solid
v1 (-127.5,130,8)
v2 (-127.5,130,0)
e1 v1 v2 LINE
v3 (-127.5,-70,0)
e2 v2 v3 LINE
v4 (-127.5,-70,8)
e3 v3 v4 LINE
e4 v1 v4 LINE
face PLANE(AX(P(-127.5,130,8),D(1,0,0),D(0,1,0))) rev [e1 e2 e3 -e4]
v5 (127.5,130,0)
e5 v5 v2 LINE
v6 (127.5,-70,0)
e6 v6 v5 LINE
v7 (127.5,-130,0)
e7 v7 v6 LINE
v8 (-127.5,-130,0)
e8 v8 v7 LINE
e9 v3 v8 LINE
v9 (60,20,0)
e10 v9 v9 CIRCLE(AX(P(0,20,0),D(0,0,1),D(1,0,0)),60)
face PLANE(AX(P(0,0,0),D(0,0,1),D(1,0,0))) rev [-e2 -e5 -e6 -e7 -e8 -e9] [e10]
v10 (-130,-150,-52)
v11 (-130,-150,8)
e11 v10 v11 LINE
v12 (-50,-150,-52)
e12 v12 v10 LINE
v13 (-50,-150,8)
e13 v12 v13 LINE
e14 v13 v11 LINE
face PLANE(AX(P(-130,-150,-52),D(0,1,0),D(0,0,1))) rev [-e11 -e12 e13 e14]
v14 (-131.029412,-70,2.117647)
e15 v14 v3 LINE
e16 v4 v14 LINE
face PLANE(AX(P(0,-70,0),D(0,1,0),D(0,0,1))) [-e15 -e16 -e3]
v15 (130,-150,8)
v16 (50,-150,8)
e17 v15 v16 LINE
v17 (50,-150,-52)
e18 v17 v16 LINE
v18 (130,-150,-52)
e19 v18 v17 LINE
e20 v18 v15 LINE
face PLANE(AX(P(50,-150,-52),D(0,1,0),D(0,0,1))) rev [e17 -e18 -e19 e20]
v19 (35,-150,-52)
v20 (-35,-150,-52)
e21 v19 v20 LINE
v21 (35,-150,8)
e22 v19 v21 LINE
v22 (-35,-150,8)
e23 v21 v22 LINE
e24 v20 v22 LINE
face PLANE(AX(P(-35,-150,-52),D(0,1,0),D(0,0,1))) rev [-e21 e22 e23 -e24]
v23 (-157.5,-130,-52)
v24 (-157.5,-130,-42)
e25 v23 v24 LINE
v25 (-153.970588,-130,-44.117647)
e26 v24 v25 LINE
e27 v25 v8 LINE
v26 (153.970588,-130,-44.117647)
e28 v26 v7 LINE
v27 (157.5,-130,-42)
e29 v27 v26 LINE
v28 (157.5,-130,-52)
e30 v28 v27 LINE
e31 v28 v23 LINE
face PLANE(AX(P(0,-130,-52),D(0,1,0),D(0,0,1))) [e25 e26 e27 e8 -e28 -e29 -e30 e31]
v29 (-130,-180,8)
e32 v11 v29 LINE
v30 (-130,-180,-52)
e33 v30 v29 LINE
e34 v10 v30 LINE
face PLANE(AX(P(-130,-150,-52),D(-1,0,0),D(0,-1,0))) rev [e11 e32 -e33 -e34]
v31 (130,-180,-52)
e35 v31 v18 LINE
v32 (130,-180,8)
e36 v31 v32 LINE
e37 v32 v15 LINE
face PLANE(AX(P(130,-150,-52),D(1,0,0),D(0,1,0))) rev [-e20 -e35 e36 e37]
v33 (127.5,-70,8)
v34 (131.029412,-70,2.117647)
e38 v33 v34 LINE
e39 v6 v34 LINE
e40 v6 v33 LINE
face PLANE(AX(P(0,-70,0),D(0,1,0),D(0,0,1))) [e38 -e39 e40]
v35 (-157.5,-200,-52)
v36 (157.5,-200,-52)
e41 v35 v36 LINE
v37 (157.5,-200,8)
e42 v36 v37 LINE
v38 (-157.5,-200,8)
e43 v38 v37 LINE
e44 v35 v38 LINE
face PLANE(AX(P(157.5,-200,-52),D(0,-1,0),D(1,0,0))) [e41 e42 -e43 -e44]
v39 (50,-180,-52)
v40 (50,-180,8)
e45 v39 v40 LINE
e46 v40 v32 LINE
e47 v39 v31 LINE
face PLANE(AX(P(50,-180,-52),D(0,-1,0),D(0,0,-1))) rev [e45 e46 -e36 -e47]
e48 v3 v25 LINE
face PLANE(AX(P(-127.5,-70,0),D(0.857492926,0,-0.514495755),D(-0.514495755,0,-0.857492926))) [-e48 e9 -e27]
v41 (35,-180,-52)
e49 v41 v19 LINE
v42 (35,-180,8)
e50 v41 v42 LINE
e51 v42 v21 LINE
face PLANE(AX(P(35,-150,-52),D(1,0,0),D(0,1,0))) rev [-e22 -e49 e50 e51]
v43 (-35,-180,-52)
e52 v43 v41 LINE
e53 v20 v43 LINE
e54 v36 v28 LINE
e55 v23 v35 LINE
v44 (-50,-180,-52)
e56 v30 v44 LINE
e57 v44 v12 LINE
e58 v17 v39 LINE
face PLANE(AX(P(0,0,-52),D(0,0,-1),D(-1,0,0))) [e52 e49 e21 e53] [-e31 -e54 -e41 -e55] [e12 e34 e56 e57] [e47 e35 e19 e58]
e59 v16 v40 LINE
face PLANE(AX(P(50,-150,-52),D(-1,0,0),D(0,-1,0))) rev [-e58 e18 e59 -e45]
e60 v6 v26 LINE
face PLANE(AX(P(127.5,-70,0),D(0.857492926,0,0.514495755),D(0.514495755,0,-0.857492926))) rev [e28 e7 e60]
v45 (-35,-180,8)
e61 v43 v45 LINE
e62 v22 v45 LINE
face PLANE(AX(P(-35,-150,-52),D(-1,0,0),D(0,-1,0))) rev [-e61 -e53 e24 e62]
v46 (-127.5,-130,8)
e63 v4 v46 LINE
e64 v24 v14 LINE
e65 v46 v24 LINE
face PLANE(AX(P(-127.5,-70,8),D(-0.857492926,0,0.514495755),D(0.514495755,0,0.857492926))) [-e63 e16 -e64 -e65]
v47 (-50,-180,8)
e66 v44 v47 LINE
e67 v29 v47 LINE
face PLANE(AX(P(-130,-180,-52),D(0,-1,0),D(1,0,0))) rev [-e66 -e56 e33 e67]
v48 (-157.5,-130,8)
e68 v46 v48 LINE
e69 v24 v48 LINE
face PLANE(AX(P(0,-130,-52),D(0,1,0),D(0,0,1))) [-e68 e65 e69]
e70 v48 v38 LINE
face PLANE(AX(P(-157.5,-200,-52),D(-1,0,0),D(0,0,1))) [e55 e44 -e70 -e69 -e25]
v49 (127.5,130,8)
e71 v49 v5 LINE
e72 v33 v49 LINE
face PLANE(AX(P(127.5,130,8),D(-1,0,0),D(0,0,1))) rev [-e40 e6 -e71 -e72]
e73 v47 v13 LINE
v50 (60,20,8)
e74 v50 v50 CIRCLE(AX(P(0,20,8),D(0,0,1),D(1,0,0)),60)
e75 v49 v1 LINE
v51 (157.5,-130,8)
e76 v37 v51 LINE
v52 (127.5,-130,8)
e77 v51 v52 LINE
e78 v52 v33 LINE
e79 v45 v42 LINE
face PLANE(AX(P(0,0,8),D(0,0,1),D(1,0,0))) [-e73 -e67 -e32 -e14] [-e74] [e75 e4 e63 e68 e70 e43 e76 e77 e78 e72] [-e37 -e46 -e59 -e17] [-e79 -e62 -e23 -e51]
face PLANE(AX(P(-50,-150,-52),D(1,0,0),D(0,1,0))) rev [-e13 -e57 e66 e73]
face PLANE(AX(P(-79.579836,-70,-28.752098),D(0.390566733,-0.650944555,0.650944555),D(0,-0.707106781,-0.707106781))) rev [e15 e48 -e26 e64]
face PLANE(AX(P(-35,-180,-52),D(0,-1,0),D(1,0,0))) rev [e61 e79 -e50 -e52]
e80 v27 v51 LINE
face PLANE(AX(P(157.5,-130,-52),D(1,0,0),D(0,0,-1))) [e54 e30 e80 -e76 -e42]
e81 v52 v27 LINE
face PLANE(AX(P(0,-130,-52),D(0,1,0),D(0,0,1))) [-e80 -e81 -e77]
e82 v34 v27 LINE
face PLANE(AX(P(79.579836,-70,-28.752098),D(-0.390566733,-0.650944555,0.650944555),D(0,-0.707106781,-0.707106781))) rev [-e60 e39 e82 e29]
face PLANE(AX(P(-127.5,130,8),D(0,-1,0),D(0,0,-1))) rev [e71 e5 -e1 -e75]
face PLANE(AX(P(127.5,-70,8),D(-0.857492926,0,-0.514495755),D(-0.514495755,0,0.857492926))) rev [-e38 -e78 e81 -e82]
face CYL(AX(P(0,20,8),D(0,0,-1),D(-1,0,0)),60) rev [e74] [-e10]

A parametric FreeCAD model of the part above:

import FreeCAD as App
import Part
import Sketcher

doc = App.newDocument("Part")
body = doc.addObject("PartDesign::Body", "Body")

# Sketch on XY plane
sketch1 = body.newObject("Sketcher::SketchObject", "Sketch")
sketch1.AttachmentSupport = (doc.getObject("XY_Plane"), [""])
sketch1.MapMode = "FlatFace"
sketch1.addGeometry(Part.LineSegment(App.Vector(-128, 130, 0), App.Vector(-128, -130, 0)), False)
sketch1.addGeometry(Part.LineSegment(App.Vector(-128, -130, 0), App.Vector(128, -130, 0)), False)
sketch1.addGeometry(Part.LineSegment(App.Vector(128, -130, 0), App.Vector(128, 130, 0)), False)
sketch1.addGeometry(Part.LineSegment(App.Vector(128, 130, 0), App.Vector(-128, 130, 0)), False)
sketch1.addGeometry(Part.Circle(App.Vector(0, 20, 0), App.Vector(0, 0, 1), 60), False)
sketch1.addConstraint(Sketcher.Constraint("Coincident", 0, 2, 1, 1))
sketch1.addConstraint(Sketcher.Constraint("Coincident", 1, 2, 2, 1))
sketch1.addConstraint(Sketcher.Constraint("Coincident", 2, 2, 3, 1))
sketch1.addConstraint(Sketcher.Constraint("Coincident", 3, 2, 0, 1))
sketch1.addConstraint(Sketcher.Constraint("Vertical", 0))
sketch1.addConstraint(Sketcher.Constraint("Horizontal", 1))
sketch1.addConstraint(Sketcher.Constraint("Vertical", 2))
sketch1.addConstraint(Sketcher.Constraint("Horizontal", 3))
sketch1.addConstraint(Sketcher.Constraint("Symmetric", 0, 2, 2, 2, -1, 1))
sketch1.addConstraint(Sketcher.Constraint("PointOnObject", 4, 3, -2))
sketch1.addConstraint(Sketcher.Constraint("Diameter", 4, 120.0))
sketch1.addConstraint(Sketcher.Constraint("DistanceX", 1, 1, 1, 2, 255.0))
sketch1.addConstraint(Sketcher.Constraint("DistanceY", 0, 2, 0, 1, 260.0))
sketch1.addConstraint(Sketcher.Constraint("DistanceY", -1, 1, 4, 3, 20.0))
pad1 = body.newObject("PartDesign::Pad", "Pad")
pad1.Profile = sketch1
pad1.Length = 8

# Sketch on XY plane
sketch2 = body.newObject("Sketcher::SketchObject", "Sketch001")
sketch2.AttachmentSupport = (doc.getObject("XY_Plane"), [""])
sketch2.MapMode = "FlatFace"
sketch2.AttachmentOffset = App.Placement(App.Vector(0, 0, 8), App.Rotation())
sketch2.addGeometry(Part.LineSegment(App.Vector(158, -130, 0), App.Vector(-158, -130, 0)), False)
sketch2.addGeometry(Part.LineSegment(App.Vector(-158, -130, 0), App.Vector(-158, -200, 0)), False)
sketch2.addGeometry(Part.LineSegment(App.Vector(-158, -200, 0), App.Vector(158, -200, 0)), False)
sketch2.addGeometry(Part.LineSegment(App.Vector(158, -200, 0), App.Vector(158, -130, 0)), False)
sketch2.addGeometry(Part.LineSegment(App.Vector(50, -180, 0), App.Vector(50, -150, 0)), False)
sketch2.addGeometry(Part.LineSegment(App.Vector(50, -150, 0), App.Vector(130, -150, 0)), False)
sketch2.addGeometry(Part.LineSegment(App.Vector(130, -150, 0), App.Vector(130, -180, 0)), False)
sketch2.addGeometry(Part.LineSegment(App.Vector(130, -180, 0), App.Vector(50, -180, 0)), False)
sketch2.addGeometry(Part.LineSegment(App.Vector(-35, -180, 0), App.Vector(-35, -150, 0)), False)
sketch2.addGeometry(Part.LineSegment(App.Vector(-35, -150, 0), App.Vector(35, -150, 0)), False)
sketch2.addGeometry(Part.LineSegment(App.Vector(35, -150, 0), App.Vector(35, -180, 0)), False)
sketch2.addGeometry(Part.LineSegment(App.Vector(35, -180, 0), App.Vector(-35, -180, 0)), False)
sketch2.addGeometry(Part.LineSegment(App.Vector(-130, -180, 0), App.Vector(-130, -150, 0)), False)
sketch2.addGeometry(Part.LineSegment(App.Vector(-130, -150, 0), App.Vector(-50, -150, 0)), False)
sketch2.addGeometry(Part.LineSegment(App.Vector(-50, -150, 0), App.Vector(-50, -180, 0)), False)
sketch2.addGeometry(Part.LineSegment(App.Vector(-50, -180, 0), App.Vector(-130, -180, 0)), False)
sketch2.addConstraint(Sketcher.Constraint("Coincident", 0, 2, 1, 1))
sketch2.addConstraint(Sketcher.Constraint("Coincident", 1, 2, 2, 1))
sketch2.addConstraint(Sketcher.Constraint("Coincident", 2, 2, 3, 1))
sketch2.addConstraint(Sketcher.Constraint("Coincident", 3, 2, 0, 1))
sketch2.addConstraint(Sketcher.Constraint("Coincident", 4, 2, 5, 1))
sketch2.addConstraint(Sketcher.Constraint("Coincident", 5, 2, 6, 1))
sketch2.addConstraint(Sketcher.Constraint("Coincident", 6, 2, 7, 1))
sketch2.addConstraint(Sketcher.Constraint("Coincident", 7, 2, 4, 1))
sketch2.addConstraint(Sketcher.Constraint("Coincident", 8, 2, 9, 1))
sketch2.addConstraint(Sketcher.Constraint("Coincident", 9, 2, 10, 1))
sketch2.addConstraint(Sketcher.Constraint("Coincident", 10, 2, 11, 1))
sketch2.addConstraint(Sketcher.Constraint("Coincident", 11, 2, 8, 1))
sketch2.addConstraint(Sketcher.Constraint("Coincident", 12, 2, 13, 1))
sketch2.addConstraint(Sketcher.Constraint("Coincident", 13, 2, 14, 1))
sketch2.addConstraint(Sketcher.Constraint("Coincident", 14, 2, 15, 1))
sketch2.addConstraint(Sketcher.Constraint("Coincident", 15, 2, 12, 1))
sketch2.addConstraint(Sketcher.Constraint("Horizontal", 0))
sketch2.addConstraint(Sketcher.Constraint("Vertical", 1))
sketch2.addConstraint(Sketcher.Constraint("Horizontal", 2))
sketch2.addConstraint(Sketcher.Constraint("Vertical", 3))
sketch2.addConstraint(Sketcher.Constraint("Vertical", 4))
sketch2.addConstraint(Sketcher.Constraint("Horizontal", 5))
sketch2.addConstraint(Sketcher.Constraint("Vertical", 6))
sketch2.addConstraint(Sketcher.Constraint("Horizontal", 7))
sketch2.addConstraint(Sketcher.Constraint("Vertical", 8))
sketch2.addConstraint(Sketcher.Constraint("Horizontal", 9))
sketch2.addConstraint(Sketcher.Constraint("Vertical", 10))
sketch2.addConstraint(Sketcher.Constraint("Horizontal", 11))
sketch2.addConstraint(Sketcher.Constraint("Vertical", 12))
sketch2.addConstraint(Sketcher.Constraint("Horizontal", 13))
sketch2.addConstraint(Sketcher.Constraint("Vertical", 14))
sketch2.addConstraint(Sketcher.Constraint("Horizontal", 15))
sketch2.addConstraint(Sketcher.Constraint("Symmetric", 5, 2, 12, 2, -2))
sketch2.addConstraint(Sketcher.Constraint("Symmetric", 7, 2, 14, 2, -2))
sketch2.addConstraint(Sketcher.Constraint("Horizontal", 5, 2, 8, 2))
sketch2.addConstraint(Sketcher.Constraint("Horizontal", 7, 2, 10, 2))
sketch2.addConstraint(Sketcher.Constraint("Equal", 11, 1))
sketch2.addConstraint(Sketcher.Constraint("DistanceX", 0, 2, 0, 1, 315.0))
sketch2.addConstraint(Sketcher.Constraint("DistanceX", 5, 1, 5, 2, 80.0))
sketch2.addConstraint(Sketcher.Constraint("DistanceX", 9, 1, 9, 2, 70.0))
sketch2.addConstraint(Sketcher.Constraint("DistanceY", 4, 1, 4, 2, 30.0))
sketch2.addConstraint(Sketcher.Constraint("DistanceY", 0, 2, -1, 1, 130.0))
sketch2.addConstraint(Sketcher.Constraint("DistanceX", -1, 1, 4, 2, 50.0))
sketch2.addConstraint(Sketcher.Constraint("DistanceY", 4, 2, -1, 1, 150.0))
sketch2.addConstraint(Sketcher.Constraint("DistanceX", 8, 2, -1, 1, 35.0))
sketch2.addConstraint(Sketcher.Constraint("DistanceX", 0, 2, -1, 1, 157.5))
pad2 = body.newObject("PartDesign::Pad", "Pad001")
pad2.Profile = sketch2
pad2.Length = 60
pad2.Reversed = True

# Sketch on XZ plane
sketch3 = body.newObject("Sketcher::SketchObject", "Sketch002")
sketch3.AttachmentSupport = (doc.getObject("XZ_Plane"), [""])
sketch3.MapMode = "FlatFace"
sketch3.AttachmentOffset = App.Placement(App.Vector(0, 0, 130), App.Rotation())
sketch3.addGeometry(Part.LineSegment(App.Vector(127.5, 8, 0), App.Vector(157.5, -42, 0)), False)
sketch3.addGeometry(Part.LineSegment(App.Vector(157.5, -42, 0), App.Vector(154, -44.1, 0)), False)
sketch3.addGeometry(Part.LineSegment(App.Vector(154, -44.1, 0), App.Vector(127.5, 0, 0)), False)
sketch3.addGeometry(Part.LineSegment(App.Vector(127.5, 0, 0), App.Vector(127.5, 8, 0)), False)
sketch3.addConstraint(Sketcher.Constraint("Coincident", 0, 2, 1, 1))
sketch3.addConstraint(Sketcher.Constraint("Coincident", 1, 2, 2, 1))
sketch3.addConstraint(Sketcher.Constraint("Coincident", 2, 2, 3, 1))
sketch3.addConstraint(Sketcher.Constraint("Coincident", 3, 2, 0, 1))
sketch3.addConstraint(Sketcher.Constraint("Vertical", 3))
sketch3.addConstraint(Sketcher.Constraint("PointOnObject", 2, 2, -1))
sketch3.addConstraint(Sketcher.Constraint("Perpendicular", 0, 1))
sketch3.addConstraint(Sketcher.Constraint("Perpendicular", 1, 2))
sketch3.addConstraint(Sketcher.Constraint("DistanceY", 3, 1, 3, 2, 8.0))
sketch3.addConstraint(Sketcher.Constraint("DistanceY", 0, 2, -1, 1, 42.0))
sketch3.addConstraint(Sketcher.Constraint("DistanceX", 2, 2, 0, 2, 30.0))
sketch3.addConstraint(Sketcher.Constraint("DistanceX", -1, 1, 0, 2, 157.5))
pad3 = body.newObject("PartDesign::Pad", "Pad002")
pad3.Profile = sketch3
pad3.Length = 60
pad3.Reversed = True

# Sketch on an angled plane
sketch4 = body.newObject("Sketcher::SketchObject", "Sketch003")
sketch4.Placement = App.Placement(App.Vector(97.279412, 0, 58.367647), App.Rotation(App.Vector(0.514495755, 0, -0.857492926), App.Vector(0, 1, 0), App.Vector(0.857492926, 0, 0.514495755), "ZXY"))
sketch4.addGeometry(Part.LineSegment(App.Vector(66, -70, 0), App.Vector(117, -130, 0)), False)
sketch4.addGeometry(Part.LineSegment(App.Vector(117, -130, 0), App.Vector(117, -70, 0)), False)
sketch4.addGeometry(Part.LineSegment(App.Vector(117, -70, 0), App.Vector(66, -70, 0)), False)
sketch4.addConstraint(Sketcher.Constraint("Coincident", 0, 2, 1, 1))
sketch4.addConstraint(Sketcher.Constraint("Coincident", 1, 2, 2, 1))
sketch4.addConstraint(Sketcher.Constraint("Coincident", 2, 2, 0, 1))
sketch4.addConstraint(Sketcher.Constraint("Vertical", 1))
sketch4.addConstraint(Sketcher.Constraint("Horizontal", 2))
sketch4.addConstraint(Sketcher.Constraint("DistanceY", 1, 1, 1, 2, 60.0))
sketch4.addConstraint(Sketcher.Constraint("DistanceY", 0, 2, -1, 1, 130.0))
sketch4.addConstraint(Sketcher.Constraint("DistanceX", 2, 2, 2, 1, 51.449576))
sketch4.addConstraint(Sketcher.Constraint("DistanceX", -1, 1, 2, 2, 65.598209))
pocket1 = body.newObject("PartDesign::Pocket", "Pocket")
pocket1.Profile = sketch4
pocket1.Length = 60
doc.recompute()

mirrored = body.newObject("PartDesign::Mirrored", "Mirrored")
mirrored.Originals = [pad3]
mirrored.MirrorPlane = (doc.getObject("YZ_Plane"), [""])
body.Tip = mirrored

# Sketch on an angled plane
sketch5 = body.newObject("Sketcher::SketchObject", "Sketch004")
sketch5.Placement = App.Placement(App.Vector(-97.279412, 0, 58.367647), App.Rotation(App.Vector(0.514495755, 0, 0.857492926), App.Vector(0, 1, 0), App.Vector(-0.857492926, 0, 0.514495755), "ZXY"))
sketch5.addGeometry(Part.LineSegment(App.Vector(-117, -130, 0), App.Vector(-66, -70, 0)), False)
sketch5.addGeometry(Part.LineSegment(App.Vector(-66, -70, 0), App.Vector(-117, -70, 0)), False)
sketch5.addGeometry(Part.LineSegment(App.Vector(-117, -70, 0), App.Vector(-117, -130, 0)), False)
sketch5.addConstraint(Sketcher.Constraint("Coincident", 0, 2, 1, 1))
sketch5.addConstraint(Sketcher.Constraint("Coincident", 1, 2, 2, 1))
sketch5.addConstraint(Sketcher.Constraint("Coincident", 2, 2, 0, 1))
sketch5.addConstraint(Sketcher.Constraint("Horizontal", 1))
sketch5.addConstraint(Sketcher.Constraint("Vertical", 2))
sketch5.addConstraint(Sketcher.Constraint("DistanceY", 2, 2, 2, 1, 60.0))
sketch5.addConstraint(Sketcher.Constraint("DistanceY", 0, 2, -1, 1, 70.0))
sketch5.addConstraint(Sketcher.Constraint("DistanceX", 1, 2, 1, 1, 51.449576))
sketch5.addConstraint(Sketcher.Constraint("DistanceX", 0, 2, -1, 1, 65.598209))
pocket2 = body.newObject("PartDesign::Pocket", "Pocket001")
pocket2.Profile = sketch5
pocket2.Length = 60

doc.recompute()
